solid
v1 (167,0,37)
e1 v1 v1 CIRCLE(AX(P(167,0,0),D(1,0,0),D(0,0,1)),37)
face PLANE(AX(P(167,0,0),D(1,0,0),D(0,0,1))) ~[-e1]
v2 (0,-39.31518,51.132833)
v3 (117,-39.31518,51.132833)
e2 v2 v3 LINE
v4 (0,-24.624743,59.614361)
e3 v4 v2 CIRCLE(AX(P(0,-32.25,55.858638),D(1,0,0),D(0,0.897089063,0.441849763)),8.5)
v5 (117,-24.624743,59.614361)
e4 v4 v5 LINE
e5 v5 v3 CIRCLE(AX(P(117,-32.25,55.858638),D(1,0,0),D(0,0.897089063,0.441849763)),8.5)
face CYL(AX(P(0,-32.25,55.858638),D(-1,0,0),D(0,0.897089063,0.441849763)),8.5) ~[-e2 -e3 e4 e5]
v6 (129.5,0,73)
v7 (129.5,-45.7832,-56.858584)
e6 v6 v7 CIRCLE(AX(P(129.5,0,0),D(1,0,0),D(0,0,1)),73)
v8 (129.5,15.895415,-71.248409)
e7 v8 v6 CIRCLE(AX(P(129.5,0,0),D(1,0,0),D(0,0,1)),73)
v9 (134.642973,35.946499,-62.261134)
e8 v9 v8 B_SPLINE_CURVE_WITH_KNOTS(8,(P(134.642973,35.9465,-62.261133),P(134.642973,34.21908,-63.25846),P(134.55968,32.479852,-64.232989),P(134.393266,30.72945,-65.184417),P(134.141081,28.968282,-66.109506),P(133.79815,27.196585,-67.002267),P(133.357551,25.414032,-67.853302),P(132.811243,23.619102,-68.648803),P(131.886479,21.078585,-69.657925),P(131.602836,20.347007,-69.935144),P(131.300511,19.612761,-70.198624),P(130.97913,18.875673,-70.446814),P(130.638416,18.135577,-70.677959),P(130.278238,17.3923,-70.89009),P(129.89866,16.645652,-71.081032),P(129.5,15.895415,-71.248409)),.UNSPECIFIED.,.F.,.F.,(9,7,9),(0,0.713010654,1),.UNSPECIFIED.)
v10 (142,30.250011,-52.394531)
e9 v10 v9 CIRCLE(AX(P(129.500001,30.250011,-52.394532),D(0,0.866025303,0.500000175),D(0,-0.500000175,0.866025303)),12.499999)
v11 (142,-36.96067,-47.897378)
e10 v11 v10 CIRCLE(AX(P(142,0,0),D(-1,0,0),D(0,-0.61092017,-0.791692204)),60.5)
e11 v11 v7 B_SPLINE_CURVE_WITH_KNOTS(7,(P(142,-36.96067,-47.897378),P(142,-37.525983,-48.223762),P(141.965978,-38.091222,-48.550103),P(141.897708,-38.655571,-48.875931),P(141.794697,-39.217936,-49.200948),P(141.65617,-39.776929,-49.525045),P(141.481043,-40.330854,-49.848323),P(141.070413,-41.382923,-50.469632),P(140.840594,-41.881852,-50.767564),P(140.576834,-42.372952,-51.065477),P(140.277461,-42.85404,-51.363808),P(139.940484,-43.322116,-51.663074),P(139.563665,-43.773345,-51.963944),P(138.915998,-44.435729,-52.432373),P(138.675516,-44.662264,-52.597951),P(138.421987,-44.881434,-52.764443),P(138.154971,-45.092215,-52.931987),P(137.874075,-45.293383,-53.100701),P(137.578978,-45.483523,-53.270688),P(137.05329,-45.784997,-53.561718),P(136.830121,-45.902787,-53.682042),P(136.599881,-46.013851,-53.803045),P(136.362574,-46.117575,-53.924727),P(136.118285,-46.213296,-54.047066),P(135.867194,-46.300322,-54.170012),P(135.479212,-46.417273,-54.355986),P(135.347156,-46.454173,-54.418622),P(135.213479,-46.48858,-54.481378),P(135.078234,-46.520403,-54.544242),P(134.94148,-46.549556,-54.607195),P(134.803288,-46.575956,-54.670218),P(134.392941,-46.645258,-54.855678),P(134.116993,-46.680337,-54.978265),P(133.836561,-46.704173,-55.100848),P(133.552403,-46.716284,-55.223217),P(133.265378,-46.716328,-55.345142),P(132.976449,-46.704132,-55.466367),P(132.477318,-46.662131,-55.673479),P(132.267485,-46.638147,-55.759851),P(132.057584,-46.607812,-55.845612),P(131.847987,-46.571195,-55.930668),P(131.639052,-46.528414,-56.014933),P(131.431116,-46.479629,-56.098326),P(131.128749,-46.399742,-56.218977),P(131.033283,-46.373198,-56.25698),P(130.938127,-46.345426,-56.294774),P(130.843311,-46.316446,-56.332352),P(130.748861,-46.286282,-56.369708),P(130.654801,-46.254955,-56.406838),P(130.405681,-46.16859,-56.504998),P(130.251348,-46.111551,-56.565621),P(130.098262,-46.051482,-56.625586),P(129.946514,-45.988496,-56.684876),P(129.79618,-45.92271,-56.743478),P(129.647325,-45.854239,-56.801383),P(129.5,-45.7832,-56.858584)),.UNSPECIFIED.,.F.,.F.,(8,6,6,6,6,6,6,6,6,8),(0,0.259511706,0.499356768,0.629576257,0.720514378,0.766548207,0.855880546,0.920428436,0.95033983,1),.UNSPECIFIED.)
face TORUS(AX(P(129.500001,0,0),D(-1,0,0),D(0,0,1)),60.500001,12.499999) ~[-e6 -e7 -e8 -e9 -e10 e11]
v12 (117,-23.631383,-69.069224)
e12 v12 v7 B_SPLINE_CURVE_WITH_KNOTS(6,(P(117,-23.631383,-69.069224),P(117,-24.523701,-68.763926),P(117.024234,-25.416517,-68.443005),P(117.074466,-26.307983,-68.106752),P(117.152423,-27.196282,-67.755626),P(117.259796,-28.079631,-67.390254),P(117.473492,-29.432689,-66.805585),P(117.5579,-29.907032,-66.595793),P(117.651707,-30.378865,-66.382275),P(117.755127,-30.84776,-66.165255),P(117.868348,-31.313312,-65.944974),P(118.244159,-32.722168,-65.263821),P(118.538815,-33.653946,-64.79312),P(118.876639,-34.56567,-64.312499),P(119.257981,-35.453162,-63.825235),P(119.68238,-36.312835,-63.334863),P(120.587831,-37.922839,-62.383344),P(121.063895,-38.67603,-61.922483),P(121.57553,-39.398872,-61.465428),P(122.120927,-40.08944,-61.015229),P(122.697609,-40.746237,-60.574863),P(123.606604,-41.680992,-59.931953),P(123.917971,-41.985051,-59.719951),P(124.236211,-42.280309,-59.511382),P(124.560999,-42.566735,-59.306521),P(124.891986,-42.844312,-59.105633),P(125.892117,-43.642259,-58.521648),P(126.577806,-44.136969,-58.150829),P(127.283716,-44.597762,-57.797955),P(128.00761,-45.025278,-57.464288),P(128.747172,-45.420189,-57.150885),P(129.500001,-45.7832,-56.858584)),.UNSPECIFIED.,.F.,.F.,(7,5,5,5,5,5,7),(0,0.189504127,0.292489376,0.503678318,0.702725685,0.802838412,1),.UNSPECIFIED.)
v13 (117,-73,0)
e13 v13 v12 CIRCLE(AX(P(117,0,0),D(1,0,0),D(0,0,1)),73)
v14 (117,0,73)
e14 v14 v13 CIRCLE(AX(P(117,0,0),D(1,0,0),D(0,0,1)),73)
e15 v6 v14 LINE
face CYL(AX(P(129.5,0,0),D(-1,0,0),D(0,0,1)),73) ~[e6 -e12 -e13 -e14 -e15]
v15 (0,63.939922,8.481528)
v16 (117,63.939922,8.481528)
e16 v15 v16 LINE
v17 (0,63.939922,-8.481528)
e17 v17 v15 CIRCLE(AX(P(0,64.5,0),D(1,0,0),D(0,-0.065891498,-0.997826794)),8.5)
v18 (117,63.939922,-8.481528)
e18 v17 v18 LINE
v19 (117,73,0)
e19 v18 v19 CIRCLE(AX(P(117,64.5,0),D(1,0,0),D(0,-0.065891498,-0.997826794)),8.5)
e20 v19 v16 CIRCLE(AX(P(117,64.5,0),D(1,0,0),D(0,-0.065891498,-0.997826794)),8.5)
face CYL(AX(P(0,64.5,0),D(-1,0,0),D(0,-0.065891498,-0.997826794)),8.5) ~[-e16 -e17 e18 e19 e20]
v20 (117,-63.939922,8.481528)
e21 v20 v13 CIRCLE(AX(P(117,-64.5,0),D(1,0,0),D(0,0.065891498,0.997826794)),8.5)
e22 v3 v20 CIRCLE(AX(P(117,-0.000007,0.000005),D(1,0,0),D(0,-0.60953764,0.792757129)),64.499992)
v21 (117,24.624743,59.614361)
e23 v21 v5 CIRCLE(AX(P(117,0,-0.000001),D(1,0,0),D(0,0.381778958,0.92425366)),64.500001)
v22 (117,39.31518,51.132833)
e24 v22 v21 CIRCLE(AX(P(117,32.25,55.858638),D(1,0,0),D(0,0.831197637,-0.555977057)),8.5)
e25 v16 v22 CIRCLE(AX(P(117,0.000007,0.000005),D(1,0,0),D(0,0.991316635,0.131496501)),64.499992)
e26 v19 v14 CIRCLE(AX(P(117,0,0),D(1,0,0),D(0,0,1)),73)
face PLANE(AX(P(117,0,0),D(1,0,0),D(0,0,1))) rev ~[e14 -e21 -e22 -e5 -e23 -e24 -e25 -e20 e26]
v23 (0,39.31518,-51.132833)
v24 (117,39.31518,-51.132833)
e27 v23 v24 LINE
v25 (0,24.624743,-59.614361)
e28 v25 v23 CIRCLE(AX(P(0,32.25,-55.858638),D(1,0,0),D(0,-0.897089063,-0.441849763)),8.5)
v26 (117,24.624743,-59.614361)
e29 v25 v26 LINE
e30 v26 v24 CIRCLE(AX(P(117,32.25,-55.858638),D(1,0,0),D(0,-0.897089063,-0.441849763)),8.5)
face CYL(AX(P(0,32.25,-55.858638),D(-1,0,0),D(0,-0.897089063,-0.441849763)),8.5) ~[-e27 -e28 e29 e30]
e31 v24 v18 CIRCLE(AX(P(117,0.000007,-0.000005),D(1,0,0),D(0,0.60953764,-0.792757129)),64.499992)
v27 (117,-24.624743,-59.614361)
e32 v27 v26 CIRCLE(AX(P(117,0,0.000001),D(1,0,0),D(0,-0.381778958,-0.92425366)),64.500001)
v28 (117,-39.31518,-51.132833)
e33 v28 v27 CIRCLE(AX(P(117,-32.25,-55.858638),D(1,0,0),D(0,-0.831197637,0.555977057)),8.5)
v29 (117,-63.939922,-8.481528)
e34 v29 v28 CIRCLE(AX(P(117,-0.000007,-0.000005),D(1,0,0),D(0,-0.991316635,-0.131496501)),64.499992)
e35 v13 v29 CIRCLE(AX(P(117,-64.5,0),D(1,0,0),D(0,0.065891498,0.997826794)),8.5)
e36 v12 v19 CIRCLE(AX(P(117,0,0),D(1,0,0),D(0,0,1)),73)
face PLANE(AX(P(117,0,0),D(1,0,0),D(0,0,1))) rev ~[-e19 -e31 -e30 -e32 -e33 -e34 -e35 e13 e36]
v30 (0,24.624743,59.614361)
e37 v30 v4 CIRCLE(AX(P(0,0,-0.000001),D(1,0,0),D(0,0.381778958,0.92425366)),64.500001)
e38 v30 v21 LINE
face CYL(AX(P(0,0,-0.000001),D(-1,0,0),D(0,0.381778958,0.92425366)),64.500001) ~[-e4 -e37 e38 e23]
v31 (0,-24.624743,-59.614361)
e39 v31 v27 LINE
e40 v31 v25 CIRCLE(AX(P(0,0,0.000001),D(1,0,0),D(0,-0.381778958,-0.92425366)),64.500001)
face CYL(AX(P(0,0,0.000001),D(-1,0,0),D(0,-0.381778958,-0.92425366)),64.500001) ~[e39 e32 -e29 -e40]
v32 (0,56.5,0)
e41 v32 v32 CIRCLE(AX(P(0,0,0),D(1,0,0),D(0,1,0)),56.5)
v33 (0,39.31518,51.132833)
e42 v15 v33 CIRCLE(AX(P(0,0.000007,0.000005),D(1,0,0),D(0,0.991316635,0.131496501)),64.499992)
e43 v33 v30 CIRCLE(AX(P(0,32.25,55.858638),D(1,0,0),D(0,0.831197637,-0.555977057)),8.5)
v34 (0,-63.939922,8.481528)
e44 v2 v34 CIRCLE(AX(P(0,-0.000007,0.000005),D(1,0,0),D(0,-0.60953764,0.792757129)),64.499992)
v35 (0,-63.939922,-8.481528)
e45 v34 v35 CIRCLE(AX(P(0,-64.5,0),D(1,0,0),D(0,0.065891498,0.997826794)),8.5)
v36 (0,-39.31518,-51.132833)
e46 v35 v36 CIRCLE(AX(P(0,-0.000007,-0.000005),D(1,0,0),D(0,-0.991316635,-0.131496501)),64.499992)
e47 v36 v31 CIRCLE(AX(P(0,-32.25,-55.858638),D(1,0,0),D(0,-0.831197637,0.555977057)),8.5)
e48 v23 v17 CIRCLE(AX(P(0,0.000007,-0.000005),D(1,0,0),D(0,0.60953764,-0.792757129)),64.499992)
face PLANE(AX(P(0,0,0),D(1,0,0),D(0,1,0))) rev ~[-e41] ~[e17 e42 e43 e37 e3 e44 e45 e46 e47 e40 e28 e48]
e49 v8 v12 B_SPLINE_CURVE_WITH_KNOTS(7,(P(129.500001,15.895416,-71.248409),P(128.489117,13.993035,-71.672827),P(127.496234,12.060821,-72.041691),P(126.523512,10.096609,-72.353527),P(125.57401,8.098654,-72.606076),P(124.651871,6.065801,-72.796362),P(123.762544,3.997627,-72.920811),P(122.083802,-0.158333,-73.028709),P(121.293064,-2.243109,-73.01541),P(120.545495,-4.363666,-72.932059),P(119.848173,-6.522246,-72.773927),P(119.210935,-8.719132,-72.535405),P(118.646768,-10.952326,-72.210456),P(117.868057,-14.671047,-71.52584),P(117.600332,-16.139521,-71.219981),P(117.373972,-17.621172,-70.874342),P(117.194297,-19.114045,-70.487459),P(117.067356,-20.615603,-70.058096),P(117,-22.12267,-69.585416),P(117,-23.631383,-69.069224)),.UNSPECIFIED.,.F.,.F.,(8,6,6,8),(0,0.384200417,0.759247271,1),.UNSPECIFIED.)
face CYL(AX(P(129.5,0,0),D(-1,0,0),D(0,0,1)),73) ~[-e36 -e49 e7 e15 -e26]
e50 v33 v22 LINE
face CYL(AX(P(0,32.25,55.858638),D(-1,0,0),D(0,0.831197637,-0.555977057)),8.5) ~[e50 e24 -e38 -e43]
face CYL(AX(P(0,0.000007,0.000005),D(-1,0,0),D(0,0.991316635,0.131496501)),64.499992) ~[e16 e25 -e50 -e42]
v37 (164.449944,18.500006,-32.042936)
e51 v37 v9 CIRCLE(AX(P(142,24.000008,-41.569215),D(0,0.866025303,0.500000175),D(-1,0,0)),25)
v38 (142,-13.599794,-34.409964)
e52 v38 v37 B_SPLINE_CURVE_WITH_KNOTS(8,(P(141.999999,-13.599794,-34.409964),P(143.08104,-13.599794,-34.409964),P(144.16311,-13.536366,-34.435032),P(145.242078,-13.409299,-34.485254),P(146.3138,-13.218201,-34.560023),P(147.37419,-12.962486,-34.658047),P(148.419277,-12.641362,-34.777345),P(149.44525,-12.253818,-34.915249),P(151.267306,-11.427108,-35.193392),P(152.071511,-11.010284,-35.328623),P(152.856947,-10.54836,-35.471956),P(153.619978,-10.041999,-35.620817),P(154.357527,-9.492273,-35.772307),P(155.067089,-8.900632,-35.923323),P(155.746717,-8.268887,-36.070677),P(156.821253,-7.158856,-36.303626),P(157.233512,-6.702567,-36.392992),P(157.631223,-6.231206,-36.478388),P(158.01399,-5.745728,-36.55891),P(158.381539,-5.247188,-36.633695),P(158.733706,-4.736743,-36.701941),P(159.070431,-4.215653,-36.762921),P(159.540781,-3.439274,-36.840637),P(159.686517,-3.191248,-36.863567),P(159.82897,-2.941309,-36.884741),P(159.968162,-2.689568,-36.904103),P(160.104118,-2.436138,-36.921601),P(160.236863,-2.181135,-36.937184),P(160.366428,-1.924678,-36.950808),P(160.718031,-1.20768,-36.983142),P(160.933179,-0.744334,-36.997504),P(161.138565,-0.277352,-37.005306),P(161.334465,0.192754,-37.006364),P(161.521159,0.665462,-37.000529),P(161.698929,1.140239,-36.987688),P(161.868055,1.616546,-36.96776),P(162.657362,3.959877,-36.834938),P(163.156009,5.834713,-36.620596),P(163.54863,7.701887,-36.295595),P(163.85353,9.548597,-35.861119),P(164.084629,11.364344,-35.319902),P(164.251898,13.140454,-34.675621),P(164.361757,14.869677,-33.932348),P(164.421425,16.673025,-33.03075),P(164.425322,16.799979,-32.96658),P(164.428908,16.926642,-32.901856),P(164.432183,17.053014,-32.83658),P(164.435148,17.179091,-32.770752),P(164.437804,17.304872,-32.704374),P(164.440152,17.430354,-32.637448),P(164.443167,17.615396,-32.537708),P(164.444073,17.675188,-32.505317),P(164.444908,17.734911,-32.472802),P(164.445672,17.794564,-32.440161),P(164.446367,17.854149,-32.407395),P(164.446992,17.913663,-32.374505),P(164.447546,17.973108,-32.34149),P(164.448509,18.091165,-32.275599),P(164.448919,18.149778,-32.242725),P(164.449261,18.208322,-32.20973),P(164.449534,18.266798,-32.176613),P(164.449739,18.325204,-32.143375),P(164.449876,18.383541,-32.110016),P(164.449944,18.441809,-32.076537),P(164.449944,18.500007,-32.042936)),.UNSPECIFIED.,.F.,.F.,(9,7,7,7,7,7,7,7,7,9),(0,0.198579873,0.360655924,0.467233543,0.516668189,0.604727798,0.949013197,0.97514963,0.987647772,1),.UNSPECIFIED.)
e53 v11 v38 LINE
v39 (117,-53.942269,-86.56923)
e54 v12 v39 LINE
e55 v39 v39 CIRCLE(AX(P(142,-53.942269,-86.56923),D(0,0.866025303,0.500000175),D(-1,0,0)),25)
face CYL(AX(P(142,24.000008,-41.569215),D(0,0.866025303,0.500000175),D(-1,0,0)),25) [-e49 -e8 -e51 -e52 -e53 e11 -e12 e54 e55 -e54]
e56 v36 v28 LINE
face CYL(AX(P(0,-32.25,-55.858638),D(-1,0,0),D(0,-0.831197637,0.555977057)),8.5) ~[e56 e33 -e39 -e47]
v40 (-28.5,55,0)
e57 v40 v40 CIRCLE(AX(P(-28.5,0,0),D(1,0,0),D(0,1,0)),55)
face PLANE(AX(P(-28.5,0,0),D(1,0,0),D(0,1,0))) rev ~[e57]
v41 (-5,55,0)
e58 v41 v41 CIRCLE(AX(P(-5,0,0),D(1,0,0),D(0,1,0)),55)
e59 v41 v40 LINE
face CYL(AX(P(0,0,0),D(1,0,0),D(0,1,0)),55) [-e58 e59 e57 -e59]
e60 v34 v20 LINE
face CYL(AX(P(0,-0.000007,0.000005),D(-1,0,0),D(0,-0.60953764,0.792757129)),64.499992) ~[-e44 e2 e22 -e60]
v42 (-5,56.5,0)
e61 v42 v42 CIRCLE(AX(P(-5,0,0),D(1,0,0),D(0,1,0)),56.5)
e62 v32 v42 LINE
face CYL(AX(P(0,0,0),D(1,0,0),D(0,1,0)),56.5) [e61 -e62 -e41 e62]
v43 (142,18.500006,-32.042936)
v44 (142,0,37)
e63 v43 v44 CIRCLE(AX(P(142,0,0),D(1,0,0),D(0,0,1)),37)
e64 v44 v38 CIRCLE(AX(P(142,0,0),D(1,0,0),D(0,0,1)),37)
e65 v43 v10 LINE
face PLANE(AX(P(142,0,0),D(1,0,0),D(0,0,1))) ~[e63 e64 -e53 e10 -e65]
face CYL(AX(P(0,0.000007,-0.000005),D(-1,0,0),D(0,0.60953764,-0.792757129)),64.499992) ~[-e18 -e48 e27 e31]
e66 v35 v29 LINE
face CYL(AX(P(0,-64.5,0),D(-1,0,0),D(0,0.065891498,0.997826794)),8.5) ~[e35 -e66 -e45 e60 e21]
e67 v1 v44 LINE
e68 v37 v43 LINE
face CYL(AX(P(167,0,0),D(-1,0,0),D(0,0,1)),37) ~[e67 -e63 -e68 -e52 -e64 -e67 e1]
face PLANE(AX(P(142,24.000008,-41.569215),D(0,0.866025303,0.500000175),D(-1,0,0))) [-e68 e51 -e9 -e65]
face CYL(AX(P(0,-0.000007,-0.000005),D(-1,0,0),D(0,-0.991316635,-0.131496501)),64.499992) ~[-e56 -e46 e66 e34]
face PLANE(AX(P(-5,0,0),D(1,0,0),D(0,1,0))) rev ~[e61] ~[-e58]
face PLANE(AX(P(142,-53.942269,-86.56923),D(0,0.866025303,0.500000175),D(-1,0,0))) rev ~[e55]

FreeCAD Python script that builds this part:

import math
import FreeCAD as App
import Part
import Sketcher
from FreeCAD import Vector

doc = App.newDocument("Part")
body = doc.addObject("PartDesign::Body", "Body")

# Sketch on YZ plane
sketch1 = body.newObject("Sketcher::SketchObject", "Sketch")
sketch1.AttachmentSupport = (doc.getObject("YZ_Plane"), [""])
sketch1.MapMode = "FlatFace"
sketch1.addGeometry(Part.Circle(Vector(0, 0, 0), Vector(0, 0, 1), 56), False)
sketch1.addConstraint([
    Sketcher.Constraint("Coincident", 0, 3, -1, 1),
    Sketcher.Constraint("Diameter", 0, 113.0),
])
pad1 = body.newObject("PartDesign::Pad", "Pad")
pad1.Profile = sketch1
pad1.Length = 5
pad1.Reversed = True

# Sketch on YZ plane
sketch2 = body.newObject("Sketcher::SketchObject", "Sketch001")
sketch2.AttachmentSupport = (doc.getObject("YZ_Plane"), [""])
sketch2.MapMode = "FlatFace"
sketch2.addGeometry(Part.Circle(Vector(0, 0, 0), Vector(0, 0, 1), 55), False)
sketch2.addConstraint([
    Sketcher.Constraint("Coincident", 0, 3, -1, 1),
    Sketcher.Constraint("Diameter", 0, 110.0),
])
pad2 = body.newObject("PartDesign::Pad", "Pad001")
pad2.Profile = sketch2
pad2.Length = 28.5
pad2.Reversed = True

# Sketch on YZ plane
sketch3 = body.newObject("Sketcher::SketchObject", "Sketch002")
sketch3.AttachmentSupport = (doc.getObject("YZ_Plane"), [""])
sketch3.MapMode = "FlatFace"
sketch3.addGeometry([
    Part.ArcOfCircle(Part.Circle(Vector(32, 56, 0), Vector(0, 0, 1), 9), math.radians(-34), math.radians(154)),  # 0
    Part.ArcOfCircle(Part.Circle(Vector(0, 0, 0), Vector(0, 0, 1), 65), math.radians(68), math.radians(112)),  # 1
    Part.ArcOfCircle(Part.Circle(Vector(-32, 56, 0), Vector(0, 0, 1), 9), math.radians(26), math.radians(214)),  # 2
    Part.ArcOfCircle(Part.Circle(Vector(0, 0, 0), Vector(0, 0, 1), 64), math.radians(128), math.radians(172)),  # 3
    Part.ArcOfCircle(Part.Circle(Vector(-64, 0, 0), Vector(0, 0, 1), 9), math.radians(86), math.radians(274)),  # 4
    Part.ArcOfCircle(Part.Circle(Vector(0, 0, 0), Vector(0, 0, 1), 64), math.radians(-172), math.radians(-128)),  # 5
    Part.ArcOfCircle(Part.Circle(Vector(-32, -56, 0), Vector(0, 0, 1), 9), math.radians(146), math.radians(334)),  # 6
    Part.ArcOfCircle(Part.Circle(Vector(0, 0, 0), Vector(0, 0, 1), 65), math.radians(-112), math.radians(-68)),  # 7
    Part.ArcOfCircle(Part.Circle(Vector(32, -56, 0), Vector(0, 0, 1), 9), math.radians(-154), math.radians(34)),  # 8
    Part.ArcOfCircle(Part.Circle(Vector(0, 0, 0), Vector(0, 0, 1), 64), math.radians(-52), math.radians(-8)),  # 9
    Part.ArcOfCircle(Part.Circle(Vector(64, 0, 0), Vector(0, 0, 1), 9), math.radians(-94), math.radians(94)),  # 10
    Part.ArcOfCircle(Part.Circle(Vector(0, 0, 0), Vector(0, 0, 1), 64), math.radians(8), math.radians(52)),  # 11
], False)
sketch3.addConstraint([
    Sketcher.Constraint("Coincident", 0, 2, 1, 1),
    Sketcher.Constraint("Coincident", 1, 2, 2, 1),
    Sketcher.Constraint("Coincident", 2, 2, 3, 1),
    Sketcher.Constraint("Coincident", 3, 2, 4, 1),
    Sketcher.Constraint("Coincident", 4, 2, 5, 1),
    Sketcher.Constraint("Coincident", 5, 2, 6, 1),
    Sketcher.Constraint("Coincident", 6, 2, 7, 1),
    Sketcher.Constraint("Coincident", 7, 2, 8, 1),
    Sketcher.Constraint("Coincident", 8, 2, 9, 1),
    Sketcher.Constraint("Coincident", 9, 2, 10, 1),
    Sketcher.Constraint("Coincident", 10, 2, 11, 1),
    Sketcher.Constraint("Coincident", 11, 2, 0, 1),
    Sketcher.Constraint("Coincident", 1, 3, -1, 1),
    Sketcher.Constraint("Coincident", 3, 3, -1, 1),
    Sketcher.Constraint("Coincident", 5, 3, -1, 1),
    Sketcher.Constraint("Coincident", 7, 3, -1, 1),
    Sketcher.Constraint("Coincident", 9, 3, -1, 1),
    Sketcher.Constraint("Coincident", 11, 3, -1, 1),
    Sketcher.Constraint("Equal", 0, 2),
    Sketcher.Constraint("Equal", 2, 4),
    Sketcher.Constraint("Equal", 3, 5),
    Sketcher.Constraint("Equal", 4, 6),
    Sketcher.Constraint("Equal", 1, 7),
    Sketcher.Constraint("Equal", 6, 8),
    Sketcher.Constraint("Equal", 5, 9),
    Sketcher.Constraint("Equal", 8, 10),
    Sketcher.Constraint("Equal", 9, 11),
    Sketcher.Constraint("Symmetric", 0, 3, 6, 3, -1, 1),
    Sketcher.Constraint("Symmetric", 2, 3, 8, 3, -1, 1),
    Sketcher.Constraint("Symmetric", 4, 3, 10, 3, -1, 1),
    Sketcher.Constraint("Symmetric", 0, 3, 2, 3, -2),
    Sketcher.Constraint("PointOnObject", 4, 3, -1),
    Sketcher.Constraint("Radius", 0, 8.5),
    Sketcher.Constraint("Radius", 1, 64.500001),
    Sketcher.Constraint("DistanceX", 4, 3, -1, 1, 64.5),
    Sketcher.Constraint("DistanceX", 2, 3, 0, 3, 64.5),
    Sketcher.Constraint("Radius", 3, 64.499992),
    Sketcher.Constraint("DistanceY", -1, 1, 0, 2, 59.614361),
])
pad3 = body.newObject("PartDesign::Pad", "Pad002")
pad3.Profile = sketch3
pad3.Length = 117

# Sketch on XZ plane
sketch4 = body.newObject("Sketcher::SketchObject", "Sketch003")
sketch4.AttachmentSupport = (doc.getObject("XZ_Plane"), [""])
sketch4.MapMode = "FlatFace"
sketch4.addGeometry([
    Part.LineSegment(Vector(142, 37, 0), Vector(142, 60, 0)),  # 0
    Part.ArcOfCircle(Part.Circle(Vector(130, 61, 0), Vector(0, 0, 1), 12), math.radians(0), math.radians(90)),  # 1
    Part.LineSegment(Vector(130, 73, 0), Vector(117, 73, 0)),  # 2
    Part.LineSegment(Vector(117, 73, 0), Vector(117, 0, 0)),  # 3
    Part.LineSegment(Vector(117, 0, 0), Vector(167, 0, 0)),  # 4
    Part.LineSegment(Vector(167, 0, 0), Vector(167, 37, 0)),  # 5
    Part.LineSegment(Vector(167, 37, 0), Vector(142, 37, 0)),  # 6
], False)
sketch4.addConstraint([
    Sketcher.Constraint("Tangent", 0, 2, 1, 1),
    Sketcher.Constraint("Tangent", 1, 2, 2, 1),
    Sketcher.Constraint("Coincident", 2, 2, 3, 1),
    Sketcher.Constraint("Coincident", 3, 2, 4, 1),
    Sketcher.Constraint("Coincident", 4, 2, 5, 1),
    Sketcher.Constraint("Coincident", 5, 2, 6, 1),
    Sketcher.Constraint("Coincident", 6, 2, 0, 1),
    Sketcher.Constraint("Vertical", 0),
    Sketcher.Constraint("Horizontal", 2),
    Sketcher.Constraint("Vertical", 3),
    Sketcher.Constraint("Horizontal", 4),
    Sketcher.Constraint("Vertical", 5),
    Sketcher.Constraint("Horizontal", 6),
    Sketcher.Constraint("PointOnObject", 3, 2, -1),
    Sketcher.Constraint("Radius", 1, 12.499999),
    Sketcher.Constraint("DistanceX", 4, 1, 4, 2, 50.0),
    Sketcher.Constraint("DistanceX", 6, 2, 6, 1, 25.0),
    Sketcher.Constraint("DistanceY", 3, 2, 3, 1, 73.0),
    Sketcher.Constraint("DistanceY", 5, 1, 5, 2, 37.0),
    Sketcher.Constraint("DistanceX", -1, 1, 0, 2, 142.0),
])
revolution = body.newObject("PartDesign::Revolution", "Revolution")
revolution.Profile = sketch4
revolution.ReferenceAxis = (sketch4, ["H_Axis"])
revolution.Angle = 360

# Sketch on an angled plane
sketch5 = body.newObject("Sketcher::SketchObject", "Sketch004")
sketch5.Placement = App.Placement(Vector(0, 0, 0), App.Rotation(Vector(-1, 0, 0), Vector(0, -0.500000175, 0.866025303), Vector(0, 0.866025303, 0.500000175), "ZXY"))
sketch5.addGeometry(Part.Circle(Vector(-142, -48, 0), Vector(0, 0, 1), 25), False)
sketch5.addConstraint([
    Sketcher.Constraint("Diameter", 0, 50.0),
    Sketcher.Constraint("DistanceX", 0, 3, -1, 1, 142.0),
    Sketcher.Constraint("DistanceY", 0, 3, -1, 1, 48.0),
])
pad4 = body.newObject("PartDesign::Pad", "Pad003")
pad4.Profile = sketch5
pad4.Length = 90
pad4.Reversed = True

doc.recompute()
